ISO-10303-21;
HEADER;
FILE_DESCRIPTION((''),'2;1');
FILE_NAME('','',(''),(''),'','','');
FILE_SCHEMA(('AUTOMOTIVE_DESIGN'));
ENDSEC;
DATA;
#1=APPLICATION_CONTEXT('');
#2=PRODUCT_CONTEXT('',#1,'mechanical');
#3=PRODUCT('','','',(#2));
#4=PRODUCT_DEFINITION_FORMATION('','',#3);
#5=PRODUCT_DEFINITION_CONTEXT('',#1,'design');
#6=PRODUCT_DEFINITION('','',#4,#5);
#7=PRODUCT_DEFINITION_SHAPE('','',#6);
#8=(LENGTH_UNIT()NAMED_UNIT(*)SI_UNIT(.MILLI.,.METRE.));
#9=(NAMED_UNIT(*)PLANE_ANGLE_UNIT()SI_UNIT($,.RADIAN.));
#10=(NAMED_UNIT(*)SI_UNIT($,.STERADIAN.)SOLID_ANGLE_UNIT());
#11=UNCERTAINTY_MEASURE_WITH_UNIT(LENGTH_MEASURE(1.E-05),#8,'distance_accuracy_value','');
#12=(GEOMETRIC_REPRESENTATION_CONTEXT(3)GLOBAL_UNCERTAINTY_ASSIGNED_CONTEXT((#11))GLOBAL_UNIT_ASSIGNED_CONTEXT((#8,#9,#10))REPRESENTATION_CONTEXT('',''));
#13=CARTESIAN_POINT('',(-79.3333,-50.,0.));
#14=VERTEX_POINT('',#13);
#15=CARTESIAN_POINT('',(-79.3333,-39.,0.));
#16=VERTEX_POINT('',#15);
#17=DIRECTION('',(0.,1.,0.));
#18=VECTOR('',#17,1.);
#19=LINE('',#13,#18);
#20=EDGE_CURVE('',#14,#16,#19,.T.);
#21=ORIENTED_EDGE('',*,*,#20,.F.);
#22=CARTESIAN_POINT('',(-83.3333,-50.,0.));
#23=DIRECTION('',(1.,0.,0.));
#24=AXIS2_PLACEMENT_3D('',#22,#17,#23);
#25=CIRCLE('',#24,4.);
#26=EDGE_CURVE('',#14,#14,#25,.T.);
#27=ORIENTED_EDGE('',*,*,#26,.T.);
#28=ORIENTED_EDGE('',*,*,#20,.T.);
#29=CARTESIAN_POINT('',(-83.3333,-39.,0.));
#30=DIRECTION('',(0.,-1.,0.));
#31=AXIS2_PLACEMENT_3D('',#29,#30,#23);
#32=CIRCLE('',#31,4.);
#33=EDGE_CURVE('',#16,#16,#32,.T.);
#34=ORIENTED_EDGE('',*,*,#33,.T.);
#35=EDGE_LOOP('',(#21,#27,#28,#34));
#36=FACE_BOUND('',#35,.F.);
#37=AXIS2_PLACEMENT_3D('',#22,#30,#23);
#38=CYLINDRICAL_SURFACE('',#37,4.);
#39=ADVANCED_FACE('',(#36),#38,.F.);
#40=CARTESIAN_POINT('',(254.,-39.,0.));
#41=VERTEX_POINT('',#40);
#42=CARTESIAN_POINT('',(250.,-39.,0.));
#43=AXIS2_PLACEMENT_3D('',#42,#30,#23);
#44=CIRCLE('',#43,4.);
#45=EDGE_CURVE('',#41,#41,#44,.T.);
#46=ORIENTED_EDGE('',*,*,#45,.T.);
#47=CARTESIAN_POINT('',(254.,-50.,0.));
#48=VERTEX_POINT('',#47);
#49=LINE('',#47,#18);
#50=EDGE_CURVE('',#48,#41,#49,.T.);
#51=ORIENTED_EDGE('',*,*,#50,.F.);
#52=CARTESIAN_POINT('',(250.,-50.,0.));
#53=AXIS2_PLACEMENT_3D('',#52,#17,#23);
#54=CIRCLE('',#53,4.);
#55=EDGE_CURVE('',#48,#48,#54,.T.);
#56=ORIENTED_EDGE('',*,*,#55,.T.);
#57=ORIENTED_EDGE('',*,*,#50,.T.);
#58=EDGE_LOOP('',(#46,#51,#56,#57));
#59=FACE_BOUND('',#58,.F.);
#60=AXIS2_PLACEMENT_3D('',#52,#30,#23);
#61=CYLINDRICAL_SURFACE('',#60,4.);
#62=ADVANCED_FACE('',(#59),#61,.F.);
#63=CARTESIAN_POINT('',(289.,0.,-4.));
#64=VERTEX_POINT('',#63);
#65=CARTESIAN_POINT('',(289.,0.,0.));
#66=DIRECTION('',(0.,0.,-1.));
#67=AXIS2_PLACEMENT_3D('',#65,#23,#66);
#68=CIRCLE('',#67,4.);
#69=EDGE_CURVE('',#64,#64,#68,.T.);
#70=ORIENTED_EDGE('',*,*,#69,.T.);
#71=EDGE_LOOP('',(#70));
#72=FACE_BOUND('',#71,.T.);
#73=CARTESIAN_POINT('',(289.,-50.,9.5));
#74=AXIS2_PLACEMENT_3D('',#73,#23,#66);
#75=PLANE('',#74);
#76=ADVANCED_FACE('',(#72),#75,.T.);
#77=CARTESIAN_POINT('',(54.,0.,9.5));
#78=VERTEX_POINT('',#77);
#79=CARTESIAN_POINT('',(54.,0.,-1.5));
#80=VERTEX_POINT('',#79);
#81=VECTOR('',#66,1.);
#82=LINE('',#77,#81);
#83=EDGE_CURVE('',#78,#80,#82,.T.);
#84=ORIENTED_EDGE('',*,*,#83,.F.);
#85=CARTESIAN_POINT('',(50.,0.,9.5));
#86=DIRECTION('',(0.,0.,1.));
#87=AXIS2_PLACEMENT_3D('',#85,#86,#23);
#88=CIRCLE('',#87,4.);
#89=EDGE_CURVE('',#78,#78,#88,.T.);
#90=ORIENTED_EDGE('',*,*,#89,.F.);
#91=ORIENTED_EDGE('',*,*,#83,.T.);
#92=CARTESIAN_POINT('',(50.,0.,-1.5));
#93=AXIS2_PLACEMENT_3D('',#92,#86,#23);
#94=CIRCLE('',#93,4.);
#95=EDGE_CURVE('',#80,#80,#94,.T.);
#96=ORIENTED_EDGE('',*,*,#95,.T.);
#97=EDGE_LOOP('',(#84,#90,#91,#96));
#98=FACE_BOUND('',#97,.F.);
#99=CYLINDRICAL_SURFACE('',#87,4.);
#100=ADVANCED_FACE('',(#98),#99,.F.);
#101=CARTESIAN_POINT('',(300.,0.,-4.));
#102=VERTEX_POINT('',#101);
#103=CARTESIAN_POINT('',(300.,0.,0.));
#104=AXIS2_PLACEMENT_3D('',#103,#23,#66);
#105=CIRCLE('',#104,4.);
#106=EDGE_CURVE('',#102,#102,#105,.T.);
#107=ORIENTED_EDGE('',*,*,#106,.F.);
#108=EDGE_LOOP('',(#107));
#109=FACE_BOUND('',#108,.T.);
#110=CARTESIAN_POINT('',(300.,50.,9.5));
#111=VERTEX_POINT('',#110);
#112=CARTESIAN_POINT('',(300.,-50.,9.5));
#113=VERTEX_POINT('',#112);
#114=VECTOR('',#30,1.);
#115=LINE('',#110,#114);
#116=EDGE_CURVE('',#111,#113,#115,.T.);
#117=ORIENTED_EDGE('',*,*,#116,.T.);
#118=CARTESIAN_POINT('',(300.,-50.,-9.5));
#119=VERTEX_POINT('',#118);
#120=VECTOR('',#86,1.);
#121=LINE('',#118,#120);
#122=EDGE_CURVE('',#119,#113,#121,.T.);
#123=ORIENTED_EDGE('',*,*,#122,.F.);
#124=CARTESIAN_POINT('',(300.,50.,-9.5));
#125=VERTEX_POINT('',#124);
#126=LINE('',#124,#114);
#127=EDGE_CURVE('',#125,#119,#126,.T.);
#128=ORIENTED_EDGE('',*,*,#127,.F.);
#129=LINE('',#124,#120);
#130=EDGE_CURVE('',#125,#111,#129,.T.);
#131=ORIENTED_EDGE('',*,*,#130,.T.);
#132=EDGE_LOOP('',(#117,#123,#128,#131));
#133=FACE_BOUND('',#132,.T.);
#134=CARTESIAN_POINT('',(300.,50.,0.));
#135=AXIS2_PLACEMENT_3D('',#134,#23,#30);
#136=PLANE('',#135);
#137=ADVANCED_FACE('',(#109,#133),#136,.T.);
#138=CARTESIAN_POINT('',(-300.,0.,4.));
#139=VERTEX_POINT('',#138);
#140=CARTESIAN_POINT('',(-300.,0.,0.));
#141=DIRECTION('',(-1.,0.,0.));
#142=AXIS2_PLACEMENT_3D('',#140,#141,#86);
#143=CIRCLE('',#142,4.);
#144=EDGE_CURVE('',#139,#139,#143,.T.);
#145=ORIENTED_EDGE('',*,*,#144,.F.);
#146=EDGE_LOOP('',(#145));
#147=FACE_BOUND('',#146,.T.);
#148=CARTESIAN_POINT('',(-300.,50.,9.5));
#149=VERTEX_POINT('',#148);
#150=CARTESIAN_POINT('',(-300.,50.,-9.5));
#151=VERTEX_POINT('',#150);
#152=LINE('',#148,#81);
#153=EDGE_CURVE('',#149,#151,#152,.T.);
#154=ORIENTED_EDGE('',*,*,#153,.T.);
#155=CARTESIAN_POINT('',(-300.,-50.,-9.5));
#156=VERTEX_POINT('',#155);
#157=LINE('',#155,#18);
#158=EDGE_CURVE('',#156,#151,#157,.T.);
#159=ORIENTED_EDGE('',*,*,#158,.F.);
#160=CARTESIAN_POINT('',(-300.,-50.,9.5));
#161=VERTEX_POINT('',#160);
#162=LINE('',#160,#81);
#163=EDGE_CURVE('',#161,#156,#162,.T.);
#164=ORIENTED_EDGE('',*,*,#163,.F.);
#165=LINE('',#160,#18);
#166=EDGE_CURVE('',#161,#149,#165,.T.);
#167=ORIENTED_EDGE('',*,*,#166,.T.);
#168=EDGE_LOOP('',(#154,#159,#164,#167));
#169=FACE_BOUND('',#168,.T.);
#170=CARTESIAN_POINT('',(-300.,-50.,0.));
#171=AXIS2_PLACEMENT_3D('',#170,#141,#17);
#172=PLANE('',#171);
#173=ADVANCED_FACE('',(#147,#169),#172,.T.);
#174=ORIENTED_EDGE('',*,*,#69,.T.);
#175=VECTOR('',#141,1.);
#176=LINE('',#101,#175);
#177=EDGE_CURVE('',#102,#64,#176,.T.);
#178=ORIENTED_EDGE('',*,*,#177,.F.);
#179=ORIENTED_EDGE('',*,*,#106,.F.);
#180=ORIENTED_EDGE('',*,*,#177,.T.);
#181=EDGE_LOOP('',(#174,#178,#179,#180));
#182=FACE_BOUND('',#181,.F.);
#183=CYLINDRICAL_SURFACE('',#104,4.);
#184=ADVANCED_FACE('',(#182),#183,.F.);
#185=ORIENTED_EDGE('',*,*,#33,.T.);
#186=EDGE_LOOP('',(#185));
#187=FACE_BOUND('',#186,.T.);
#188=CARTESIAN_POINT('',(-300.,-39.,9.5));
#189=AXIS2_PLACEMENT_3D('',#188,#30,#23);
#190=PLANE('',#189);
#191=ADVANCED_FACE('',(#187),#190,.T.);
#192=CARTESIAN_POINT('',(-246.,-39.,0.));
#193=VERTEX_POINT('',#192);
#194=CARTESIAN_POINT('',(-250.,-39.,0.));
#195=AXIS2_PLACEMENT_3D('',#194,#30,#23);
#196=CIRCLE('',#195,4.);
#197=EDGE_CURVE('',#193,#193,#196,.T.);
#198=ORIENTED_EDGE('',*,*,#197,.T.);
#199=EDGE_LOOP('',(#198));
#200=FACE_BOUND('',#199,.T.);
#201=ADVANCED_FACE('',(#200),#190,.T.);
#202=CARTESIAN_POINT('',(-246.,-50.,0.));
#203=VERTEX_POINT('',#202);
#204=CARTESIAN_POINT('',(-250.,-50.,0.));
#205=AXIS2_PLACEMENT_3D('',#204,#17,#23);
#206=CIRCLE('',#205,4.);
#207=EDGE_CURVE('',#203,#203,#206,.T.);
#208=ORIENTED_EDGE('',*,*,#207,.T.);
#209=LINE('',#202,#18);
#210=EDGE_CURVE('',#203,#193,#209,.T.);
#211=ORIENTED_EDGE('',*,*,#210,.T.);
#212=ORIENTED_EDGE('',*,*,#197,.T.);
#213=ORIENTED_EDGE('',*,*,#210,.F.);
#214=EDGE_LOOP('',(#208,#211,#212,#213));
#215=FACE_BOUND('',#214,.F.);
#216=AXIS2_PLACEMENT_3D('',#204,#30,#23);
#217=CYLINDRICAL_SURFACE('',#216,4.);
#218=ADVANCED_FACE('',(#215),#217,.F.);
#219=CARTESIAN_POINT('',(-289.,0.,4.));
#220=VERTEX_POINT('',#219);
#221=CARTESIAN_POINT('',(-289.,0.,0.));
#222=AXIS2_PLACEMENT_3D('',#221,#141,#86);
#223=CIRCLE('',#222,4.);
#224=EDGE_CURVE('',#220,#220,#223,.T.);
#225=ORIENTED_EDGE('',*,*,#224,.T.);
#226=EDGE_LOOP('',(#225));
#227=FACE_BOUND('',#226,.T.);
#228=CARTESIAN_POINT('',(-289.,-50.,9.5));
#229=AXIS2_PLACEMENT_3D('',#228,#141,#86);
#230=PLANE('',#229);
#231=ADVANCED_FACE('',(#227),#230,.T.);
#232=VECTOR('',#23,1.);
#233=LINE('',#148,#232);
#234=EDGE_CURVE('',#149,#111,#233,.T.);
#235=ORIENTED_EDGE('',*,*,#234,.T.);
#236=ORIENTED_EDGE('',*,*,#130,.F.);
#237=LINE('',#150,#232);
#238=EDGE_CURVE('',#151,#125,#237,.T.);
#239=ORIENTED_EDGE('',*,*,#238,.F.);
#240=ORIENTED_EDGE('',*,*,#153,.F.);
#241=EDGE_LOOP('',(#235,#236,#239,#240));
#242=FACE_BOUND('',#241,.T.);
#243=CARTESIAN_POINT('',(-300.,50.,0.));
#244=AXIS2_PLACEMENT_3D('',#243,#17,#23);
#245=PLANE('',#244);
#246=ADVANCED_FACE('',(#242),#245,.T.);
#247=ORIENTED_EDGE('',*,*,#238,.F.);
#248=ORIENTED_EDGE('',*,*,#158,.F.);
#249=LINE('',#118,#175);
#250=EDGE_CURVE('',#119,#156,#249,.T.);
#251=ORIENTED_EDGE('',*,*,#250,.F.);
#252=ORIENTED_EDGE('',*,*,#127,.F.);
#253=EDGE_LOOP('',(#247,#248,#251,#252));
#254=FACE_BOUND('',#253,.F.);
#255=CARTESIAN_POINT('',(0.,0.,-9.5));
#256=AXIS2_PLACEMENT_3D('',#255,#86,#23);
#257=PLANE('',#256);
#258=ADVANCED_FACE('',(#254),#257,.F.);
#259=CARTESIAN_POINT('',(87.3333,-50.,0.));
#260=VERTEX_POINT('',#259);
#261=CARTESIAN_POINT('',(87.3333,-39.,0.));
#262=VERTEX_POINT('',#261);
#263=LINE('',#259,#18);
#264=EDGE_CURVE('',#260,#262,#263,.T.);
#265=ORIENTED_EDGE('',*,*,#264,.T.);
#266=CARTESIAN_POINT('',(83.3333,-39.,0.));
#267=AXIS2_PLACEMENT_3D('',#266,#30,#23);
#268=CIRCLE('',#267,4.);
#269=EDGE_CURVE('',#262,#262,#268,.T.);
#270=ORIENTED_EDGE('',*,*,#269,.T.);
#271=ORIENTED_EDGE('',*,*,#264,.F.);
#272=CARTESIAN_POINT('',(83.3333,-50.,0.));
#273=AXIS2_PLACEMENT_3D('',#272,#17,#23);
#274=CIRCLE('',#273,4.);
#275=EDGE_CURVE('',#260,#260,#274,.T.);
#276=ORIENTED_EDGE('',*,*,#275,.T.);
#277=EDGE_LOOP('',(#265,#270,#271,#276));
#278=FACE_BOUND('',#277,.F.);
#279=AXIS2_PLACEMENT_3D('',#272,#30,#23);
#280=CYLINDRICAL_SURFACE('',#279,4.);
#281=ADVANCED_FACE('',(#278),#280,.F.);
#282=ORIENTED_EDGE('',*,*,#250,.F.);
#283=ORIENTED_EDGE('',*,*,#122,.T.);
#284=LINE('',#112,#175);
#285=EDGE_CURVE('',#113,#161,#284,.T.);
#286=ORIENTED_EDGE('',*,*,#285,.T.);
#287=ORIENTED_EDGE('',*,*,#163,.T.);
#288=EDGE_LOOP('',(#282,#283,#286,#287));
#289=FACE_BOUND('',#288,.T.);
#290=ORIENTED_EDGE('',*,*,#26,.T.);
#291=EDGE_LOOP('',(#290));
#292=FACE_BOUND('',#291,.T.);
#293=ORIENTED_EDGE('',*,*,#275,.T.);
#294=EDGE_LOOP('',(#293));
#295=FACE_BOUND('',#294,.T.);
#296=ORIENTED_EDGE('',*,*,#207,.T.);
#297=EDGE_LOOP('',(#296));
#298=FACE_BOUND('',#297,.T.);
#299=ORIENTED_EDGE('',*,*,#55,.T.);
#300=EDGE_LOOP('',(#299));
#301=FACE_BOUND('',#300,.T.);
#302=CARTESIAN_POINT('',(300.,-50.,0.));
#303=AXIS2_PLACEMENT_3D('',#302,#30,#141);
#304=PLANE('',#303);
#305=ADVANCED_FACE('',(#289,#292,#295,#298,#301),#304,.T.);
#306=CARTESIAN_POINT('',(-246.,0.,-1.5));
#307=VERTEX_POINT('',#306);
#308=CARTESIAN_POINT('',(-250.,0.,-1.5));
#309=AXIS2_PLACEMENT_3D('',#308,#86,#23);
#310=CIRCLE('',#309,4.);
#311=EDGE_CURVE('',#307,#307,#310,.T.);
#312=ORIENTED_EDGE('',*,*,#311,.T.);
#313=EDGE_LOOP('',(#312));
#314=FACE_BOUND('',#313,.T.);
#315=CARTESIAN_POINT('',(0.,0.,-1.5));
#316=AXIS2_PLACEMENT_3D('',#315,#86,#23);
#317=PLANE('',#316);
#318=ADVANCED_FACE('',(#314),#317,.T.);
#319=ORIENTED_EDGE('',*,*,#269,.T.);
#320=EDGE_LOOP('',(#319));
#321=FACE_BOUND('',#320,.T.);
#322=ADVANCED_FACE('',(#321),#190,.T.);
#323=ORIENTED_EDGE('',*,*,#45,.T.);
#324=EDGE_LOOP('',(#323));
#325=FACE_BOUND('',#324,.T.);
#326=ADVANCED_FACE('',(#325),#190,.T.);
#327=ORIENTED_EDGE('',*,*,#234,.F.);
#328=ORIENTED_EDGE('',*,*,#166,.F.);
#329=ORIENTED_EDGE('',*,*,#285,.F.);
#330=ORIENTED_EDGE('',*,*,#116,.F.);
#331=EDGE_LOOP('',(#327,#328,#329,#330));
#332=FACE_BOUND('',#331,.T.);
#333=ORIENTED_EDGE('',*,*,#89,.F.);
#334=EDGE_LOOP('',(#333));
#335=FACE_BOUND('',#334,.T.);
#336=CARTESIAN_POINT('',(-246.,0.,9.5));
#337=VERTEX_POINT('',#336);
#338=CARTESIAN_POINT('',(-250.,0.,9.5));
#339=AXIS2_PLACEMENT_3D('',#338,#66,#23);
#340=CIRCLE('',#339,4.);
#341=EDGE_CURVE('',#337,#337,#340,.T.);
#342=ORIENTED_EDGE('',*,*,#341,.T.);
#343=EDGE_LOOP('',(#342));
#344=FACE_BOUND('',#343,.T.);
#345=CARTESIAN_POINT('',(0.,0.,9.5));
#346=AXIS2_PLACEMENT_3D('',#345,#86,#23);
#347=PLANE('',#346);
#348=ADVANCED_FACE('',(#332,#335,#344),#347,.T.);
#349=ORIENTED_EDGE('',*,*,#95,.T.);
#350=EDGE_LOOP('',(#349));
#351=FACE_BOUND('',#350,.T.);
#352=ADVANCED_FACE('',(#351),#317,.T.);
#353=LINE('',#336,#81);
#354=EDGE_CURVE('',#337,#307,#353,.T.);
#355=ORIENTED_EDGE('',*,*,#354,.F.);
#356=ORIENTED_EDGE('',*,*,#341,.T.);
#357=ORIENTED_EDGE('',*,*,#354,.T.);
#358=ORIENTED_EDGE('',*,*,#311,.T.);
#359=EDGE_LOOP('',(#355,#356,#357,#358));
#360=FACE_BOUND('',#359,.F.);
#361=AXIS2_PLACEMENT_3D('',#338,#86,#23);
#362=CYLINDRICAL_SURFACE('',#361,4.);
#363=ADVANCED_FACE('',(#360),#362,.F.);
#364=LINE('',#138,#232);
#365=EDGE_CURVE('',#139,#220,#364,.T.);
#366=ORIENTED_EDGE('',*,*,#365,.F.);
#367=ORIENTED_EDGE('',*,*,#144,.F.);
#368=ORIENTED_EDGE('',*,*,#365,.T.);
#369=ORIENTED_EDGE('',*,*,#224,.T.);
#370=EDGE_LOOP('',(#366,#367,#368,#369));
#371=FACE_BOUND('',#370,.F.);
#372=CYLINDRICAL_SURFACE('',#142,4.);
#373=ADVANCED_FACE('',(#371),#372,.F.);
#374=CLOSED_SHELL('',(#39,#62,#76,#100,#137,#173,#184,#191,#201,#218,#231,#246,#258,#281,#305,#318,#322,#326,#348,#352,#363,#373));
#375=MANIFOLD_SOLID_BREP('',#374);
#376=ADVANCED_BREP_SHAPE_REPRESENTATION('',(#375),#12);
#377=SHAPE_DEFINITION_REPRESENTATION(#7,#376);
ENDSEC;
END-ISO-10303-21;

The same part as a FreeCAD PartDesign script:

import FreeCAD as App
import Part
import Sketcher

V = App.Vector
Q = App.Units.Quantity

doc = App.newDocument("Part")
body = doc.addObject("PartDesign::Body", "Body")

sketch1 = doc.addObject("Sketcher::SketchObject", "Sketch")
body.addObject(sketch1)
sketch1.AttachmentSupport = (doc.XY_Plane, [""])
sketch1.MapMode = "FlatFace"
sketch1.addGeometry(Part.LineSegment(V(-300, -50, 0), V(300, -50, 0)), False)
sketch1.addGeometry(Part.LineSegment(V(300, -50, 0), V(300, 50, 0)), False)
sketch1.addGeometry(Part.LineSegment(V(300, 50, 0), V(-300, 50, 0)), False)
sketch1.addGeometry(Part.LineSegment(V(-300, 50, 0), V(-300, -50, 0)), False)
sketch1.addConstraint(Sketcher.Constraint("Coincident", 0, 2, 1, 1))
sketch1.addConstraint(Sketcher.Constraint("Coincident", 1, 2, 2, 1))
sketch1.addConstraint(Sketcher.Constraint("Coincident", 2, 2, 3, 1))
sketch1.addConstraint(Sketcher.Constraint("Coincident", 3, 2, 0, 1))
sketch1.addConstraint(Sketcher.Constraint("Horizontal", 0))
sketch1.addConstraint(Sketcher.Constraint("Vertical", 1))
sketch1.addConstraint(Sketcher.Constraint("Horizontal", 2))
sketch1.addConstraint(Sketcher.Constraint("Vertical", 3))
sketch1.addConstraint(Sketcher.Constraint("Symmetric", 0, 2, 2, 2, -1, 1))
sketch1.addConstraint(Sketcher.Constraint("DistanceX", 0, 1, 0, 2, Q("600 mm")))
sketch1.addConstraint(Sketcher.Constraint("DistanceY", 1, 1, 1, 2, Q("100 mm")))
pad1 = doc.addObject("PartDesign::Pad", "Pad")
body.addObject(pad1)
pad1.Profile = sketch1
pad1.Type = "TwoLengths"
pad1.Length = 9.5
pad1.Length2 = 9.5

sketch2 = doc.addObject("Sketcher::SketchObject", "Sketch001")
body.addObject(sketch2)
sketch2.AttachmentSupport = (doc.XY_Plane, [""])
sketch2.MapMode = "FlatFace"
sketch2.AttachmentOffset = App.Placement(V(0, 0, 9.5), App.Rotation())
sketch2.addGeometry(Part.Circle(V(-250, 0, 0), V(0, 0, 1), 4), False)
sketch2.addGeometry(Part.Circle(V(50, 0, 0), V(0, 0, 1), 4), False)
sketch2.addConstraint(Sketcher.Constraint("Equal", 0, 1))
sketch2.addConstraint(Sketcher.Constraint("PointOnObject", 0, 3, -1))
sketch2.addConstraint(Sketcher.Constraint("PointOnObject", 1, 3, -1))
sketch2.addConstraint(Sketcher.Constraint("Diameter", 0, Q("8 mm")))
sketch2.addConstraint(Sketcher.Constraint("DistanceX", 0, 3, -1, 1, Q("250 mm")))
sketch2.addConstraint(Sketcher.Constraint("DistanceX", -1, 1, 1, 3, Q("50 mm")))
pocket1 = doc.addObject("PartDesign::Pocket", "Pocket")
body.addObject(pocket1)
pocket1.Profile = sketch2
pocket1.Length = 11

sketch3 = doc.addObject("Sketcher::SketchObject", "Sketch002")
body.addObject(sketch3)
sketch3.AttachmentSupport = (doc.YZ_Plane, [""])
sketch3.MapMode = "FlatFace"
sketch3.AttachmentOffset = App.Placement(V(0, 0, 300), App.Rotation())
sketch3.addGeometry(Part.Circle(V(0, 0, 0), V(0, 0, 1), 4), False)
sketch3.addConstraint(Sketcher.Constraint("Coincident", 0, 3, -1, 1))
sketch3.addConstraint(Sketcher.Constraint("Diameter", 0, Q("8 mm")))
pocket2 = doc.addObject("PartDesign::Pocket", "Pocket001")
body.addObject(pocket2)
pocket2.Profile = sketch3
pocket2.Length = 11

sketch4 = doc.addObject("Sketcher::SketchObject", "Sketch003")
body.addObject(sketch4)
sketch4.AttachmentSupport = (doc.YZ_Plane, [""])
sketch4.MapMode = "FlatFace"
sketch4.AttachmentOffset = App.Placement(V(0, 0, -300), App.Rotation())
sketch4.addGeometry(Part.Circle(V(0, 0, 0), V(0, 0, 1), 4), False)
sketch4.addConstraint(Sketcher.Constraint("Coincident", 0, 3, -1, 1))
sketch4.addConstraint(Sketcher.Constraint("Diameter", 0, Q("8 mm")))
pocket3 = doc.addObject("PartDesign::Pocket", "Pocket002")
body.addObject(pocket3)
pocket3.Profile = sketch4
pocket3.Length = 11
pocket3.Reversed = True

sketch5 = doc.addObject("Sketcher::SketchObject", "Sketch004")
body.addObject(sketch5)
sketch5.AttachmentSupport = (doc.XZ_Plane, [""])
sketch5.MapMode = "FlatFace"
sketch5.AttachmentOffset = App.Placement(V(0, 0, 50), App.Rotation())
sketch5.addGeometry(Part.Circle(V(-250, 0, 0), V(0, 0, 1), 4), False)
sketch5.addGeometry(Part.Circle(V(250, 0, 0), V(0, 0, 1), 4), False)
sketch5.addGeometry(Part.Circle(V(83.3, 0, 0), V(0, 0, 1), 4), False)
sketch5.addGeometry(Part.Circle(V(-83.3, 0, 0), V(0, 0, 1), 4), False)
sketch5.addConstraint(Sketcher.Constraint("Equal", 0, 1))
sketch5.addConstraint(Sketcher.Constraint("Equal", 1, 2))
sketch5.addConstraint(Sketcher.Constraint("Equal", 2, 3))
sketch5.addConstraint(Sketcher.Constraint("Symmetric", 0, 3, 1, 3, -1, 1))
sketch5.addConstraint(Sketcher.Constraint("Symmetric", 2, 3, 3, 3, -1, 1))
sketch5.addConstraint(Sketcher.Constraint("PointOnObject", 0, 3, -1))
sketch5.addConstraint(Sketcher.Constraint("PointOnObject", 2, 3, -1))
sketch5.addConstraint(Sketcher.Constraint("Diameter", 0, Q("8 mm")))
sketch5.addConstraint(Sketcher.Constraint("DistanceX", 0, 3, -1, 1, Q("250 mm")))
sketch5.addConstraint(Sketcher.Constraint("DistanceX", 2, 3, 1, 3, Q("166.6667 mm")))
pocket4 = doc.addObject("PartDesign::Pocket", "Pocket003")
body.addObject(pocket4)
pocket4.Profile = sketch5
pocket4.Length = 11

doc.recompute()
